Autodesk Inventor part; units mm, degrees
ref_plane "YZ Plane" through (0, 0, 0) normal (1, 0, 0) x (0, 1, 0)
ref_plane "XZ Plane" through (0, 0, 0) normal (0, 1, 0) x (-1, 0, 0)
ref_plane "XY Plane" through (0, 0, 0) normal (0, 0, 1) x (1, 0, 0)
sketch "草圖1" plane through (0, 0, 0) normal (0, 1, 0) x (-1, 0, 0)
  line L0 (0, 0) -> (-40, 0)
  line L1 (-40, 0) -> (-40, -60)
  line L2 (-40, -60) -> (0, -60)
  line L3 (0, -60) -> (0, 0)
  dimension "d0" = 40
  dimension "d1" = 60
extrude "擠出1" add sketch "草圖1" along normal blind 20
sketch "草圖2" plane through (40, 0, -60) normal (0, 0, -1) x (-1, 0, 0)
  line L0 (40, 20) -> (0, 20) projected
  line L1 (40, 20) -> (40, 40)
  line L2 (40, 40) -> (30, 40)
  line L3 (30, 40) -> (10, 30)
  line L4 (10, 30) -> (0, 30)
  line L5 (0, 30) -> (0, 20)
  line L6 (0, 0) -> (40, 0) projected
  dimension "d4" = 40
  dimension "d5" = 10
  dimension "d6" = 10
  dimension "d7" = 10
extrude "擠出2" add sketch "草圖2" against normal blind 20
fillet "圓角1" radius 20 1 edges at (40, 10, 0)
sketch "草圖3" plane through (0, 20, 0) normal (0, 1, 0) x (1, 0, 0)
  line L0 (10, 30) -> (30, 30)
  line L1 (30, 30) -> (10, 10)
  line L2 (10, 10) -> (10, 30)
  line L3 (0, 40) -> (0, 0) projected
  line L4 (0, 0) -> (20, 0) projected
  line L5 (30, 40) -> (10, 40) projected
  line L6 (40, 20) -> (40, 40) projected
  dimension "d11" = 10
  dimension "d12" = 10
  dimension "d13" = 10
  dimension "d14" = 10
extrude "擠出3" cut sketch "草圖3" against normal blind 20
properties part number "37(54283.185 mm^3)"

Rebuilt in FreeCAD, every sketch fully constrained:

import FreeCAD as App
import Part
import Sketcher

V = App.Vector


def edges_at(feature, points):
    """Names of the edges that pass closest to the given points."""
    edges = feature.Shape.Edges
    near = lambda p: min(range(len(edges)), key=lambda i: edges[i].distToShape(Part.Vertex(*p))[0])
    return sorted({f"Edge{near(p) + 1}" for p in points})


def add_polygon(sketch, points):
    """Adds a closed chain of lines whose ends are joined by coincident constraints."""
    first, n = sketch.GeometryCount, len(points)
    for a, b in zip(points, points[1:] + points[:1]):
        sketch.addGeometry(Part.LineSegment(App.Vector(*a, 0), App.Vector(*b, 0)), False)
    for i in range(n):
        sketch.addConstraint(Sketcher.Constraint("Coincident", first + i, 2, first + (i + 1) % n, 1))

doc = App.newDocument("Part")
body = doc.addObject("PartDesign::Body", "Body")

# Sketch on XZ plane
sketch1 = body.newObject("Sketcher::SketchObject", "Sketch")
sketch1.AttachmentSupport = (doc.getObject("XZ_Plane"), [""])
sketch1.MapMode = "FlatFace"
add_polygon(sketch1, [(0, -60), (0, 0), (40, 0), (40, -60)])  # lines 0-3
sketch1.addConstraint([
    Sketcher.Constraint("Vertical", 0),
    Sketcher.Constraint("Horizontal", 1),
    Sketcher.Constraint("Vertical", 2),
    Sketcher.Constraint("Horizontal", 3),
    Sketcher.Constraint("Coincident", 0, 2, -1, 1),
    Sketcher.Constraint("DistanceX", 1, 1, 1, 2, 40.0),
    Sketcher.Constraint("DistanceY", 0, 1, 0, 2, 60.0),
])
pad1 = body.newObject("PartDesign::Pad", "Pad")
pad1.Profile = sketch1
pad1.Length = 20
pad1.Reversed = True

# Sketch on XY plane
sketch2 = body.newObject("Sketcher::SketchObject", "Sketch001")
sketch2.AttachmentSupport = (doc.getObject("XY_Plane"), [""])
sketch2.MapMode = "FlatFace"
sketch2.AttachmentOffset = App.Placement(V(0, 0, -60), App.Rotation())
add_polygon(sketch2, [(40, 20), (0, 20), (0, 40), (10, 40), (30, 30), (40, 30)])  # lines 0-5
sketch2.addConstraint([
    Sketcher.Constraint("Horizontal", 0),
    Sketcher.Constraint("Vertical", 1),
    Sketcher.Constraint("Horizontal", 2),
    Sketcher.Constraint("Horizontal", 4),
    Sketcher.Constraint("Vertical", 5),
    Sketcher.Constraint("PointOnObject", 0, 2, -2),
    Sketcher.Constraint("Equal", 2, 4),
    Sketcher.Constraint("Equal", 4, 5),
    Sketcher.Constraint("DistanceX", 0, 2, 0, 1, 40.0),
    Sketcher.Constraint("DistanceX", 2, 1, 2, 2, 10.0),
    Sketcher.Constraint("DistanceY", -1, 1, 1, 2, 40.0),
    Sketcher.Constraint("DistanceY", 3, 2, 2, 2, 10.0),
])
pad2 = body.newObject("PartDesign::Pad", "Pad001")
pad2.Profile = sketch2
pad2.Length = 20
doc.recompute()

fillet = body.newObject("PartDesign::Fillet", "Fillet")
fillet.Base = (pad2, edges_at(pad2, [(40, 10, 0)]))
fillet.Radius = 20

# Sketch on XZ plane
sketch3 = body.newObject("Sketcher::SketchObject", "Sketch002")
sketch3.AttachmentSupport = (doc.getObject("XZ_Plane"), [""])
sketch3.MapMode = "FlatFace"
sketch3.AttachmentOffset = App.Placement(V(0, 0, -20), App.Rotation())
add_polygon(sketch3, [(30, -30), (10, -30), (10, -10)])  # lines 0-2
sketch3.addConstraint([
    Sketcher.Constraint("Horizontal", 0),
    Sketcher.Constraint("Vertical", 1),
    Sketcher.Constraint("Equal", 0, 1),
    Sketcher.Constraint("DistanceX", -1, 1, 0, 2, 10.0),
    Sketcher.Constraint("DistanceY", 1, 2, -1, 1, 10.0),
    Sketcher.Constraint("DistanceX", 0, 2, 0, 1, 20.0),
])
pocket1 = body.newObject("PartDesign::Pocket", "Pocket")
pocket1.Profile = sketch3
pocket1.Length = 20
pocket1.Reversed = True

doc.recompute()
